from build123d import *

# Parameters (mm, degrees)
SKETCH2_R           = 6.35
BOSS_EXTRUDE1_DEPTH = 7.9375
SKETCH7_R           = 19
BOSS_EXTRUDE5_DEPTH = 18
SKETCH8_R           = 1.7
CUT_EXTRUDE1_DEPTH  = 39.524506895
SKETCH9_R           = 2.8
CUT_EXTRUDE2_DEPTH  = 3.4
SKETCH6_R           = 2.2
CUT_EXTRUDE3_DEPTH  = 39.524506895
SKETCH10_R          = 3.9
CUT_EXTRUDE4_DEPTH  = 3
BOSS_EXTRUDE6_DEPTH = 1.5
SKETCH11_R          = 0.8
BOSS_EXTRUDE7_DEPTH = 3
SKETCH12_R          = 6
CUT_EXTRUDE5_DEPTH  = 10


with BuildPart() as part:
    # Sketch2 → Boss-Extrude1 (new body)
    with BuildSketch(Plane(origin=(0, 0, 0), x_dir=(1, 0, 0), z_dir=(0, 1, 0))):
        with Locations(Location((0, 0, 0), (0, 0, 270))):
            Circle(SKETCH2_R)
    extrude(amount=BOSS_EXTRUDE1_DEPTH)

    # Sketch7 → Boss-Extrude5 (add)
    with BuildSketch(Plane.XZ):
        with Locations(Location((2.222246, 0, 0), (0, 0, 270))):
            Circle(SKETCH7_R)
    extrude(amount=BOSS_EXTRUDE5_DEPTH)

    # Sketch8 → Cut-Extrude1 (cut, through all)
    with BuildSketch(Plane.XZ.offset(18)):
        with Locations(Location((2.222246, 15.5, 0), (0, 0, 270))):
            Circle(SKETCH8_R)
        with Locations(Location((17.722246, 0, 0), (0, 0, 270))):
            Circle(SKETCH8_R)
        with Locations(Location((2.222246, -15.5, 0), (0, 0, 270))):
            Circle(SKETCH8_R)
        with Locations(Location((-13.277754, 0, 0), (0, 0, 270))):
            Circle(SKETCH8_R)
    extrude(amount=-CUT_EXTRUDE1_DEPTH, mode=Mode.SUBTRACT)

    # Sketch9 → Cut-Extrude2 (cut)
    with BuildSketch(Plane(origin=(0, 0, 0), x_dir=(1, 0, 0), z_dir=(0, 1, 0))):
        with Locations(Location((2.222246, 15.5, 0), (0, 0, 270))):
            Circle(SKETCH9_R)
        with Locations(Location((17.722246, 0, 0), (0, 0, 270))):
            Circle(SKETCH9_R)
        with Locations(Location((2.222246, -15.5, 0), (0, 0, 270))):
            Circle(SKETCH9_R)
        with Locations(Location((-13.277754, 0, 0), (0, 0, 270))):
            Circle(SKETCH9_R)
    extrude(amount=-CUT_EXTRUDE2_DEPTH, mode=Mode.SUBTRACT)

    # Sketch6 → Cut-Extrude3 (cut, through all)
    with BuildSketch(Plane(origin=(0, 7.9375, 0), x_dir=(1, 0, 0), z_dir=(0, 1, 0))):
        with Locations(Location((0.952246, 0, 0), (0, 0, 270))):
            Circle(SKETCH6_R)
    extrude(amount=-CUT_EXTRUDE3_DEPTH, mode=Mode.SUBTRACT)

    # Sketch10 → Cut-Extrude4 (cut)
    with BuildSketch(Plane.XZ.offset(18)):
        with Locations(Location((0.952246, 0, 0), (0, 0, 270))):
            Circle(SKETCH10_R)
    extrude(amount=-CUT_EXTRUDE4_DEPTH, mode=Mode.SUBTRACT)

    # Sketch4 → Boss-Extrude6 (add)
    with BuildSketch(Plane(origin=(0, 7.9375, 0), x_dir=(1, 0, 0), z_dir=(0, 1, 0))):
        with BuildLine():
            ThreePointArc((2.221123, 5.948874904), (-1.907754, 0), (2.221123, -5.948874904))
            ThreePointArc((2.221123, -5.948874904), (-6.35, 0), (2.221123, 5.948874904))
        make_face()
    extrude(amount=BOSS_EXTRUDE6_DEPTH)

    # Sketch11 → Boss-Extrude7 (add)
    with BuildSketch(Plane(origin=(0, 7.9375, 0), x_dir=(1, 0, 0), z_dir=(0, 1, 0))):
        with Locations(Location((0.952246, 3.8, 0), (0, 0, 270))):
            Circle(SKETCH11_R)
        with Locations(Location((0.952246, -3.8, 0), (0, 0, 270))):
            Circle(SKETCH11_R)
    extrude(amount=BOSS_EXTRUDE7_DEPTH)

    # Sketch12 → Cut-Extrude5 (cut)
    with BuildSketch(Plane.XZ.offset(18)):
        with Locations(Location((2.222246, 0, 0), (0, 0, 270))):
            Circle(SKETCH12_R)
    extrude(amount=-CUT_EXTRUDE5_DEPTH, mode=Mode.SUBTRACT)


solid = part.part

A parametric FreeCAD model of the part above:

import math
import FreeCAD as App
import Part
import Sketcher
from FreeCAD import Vector
Q = App.Units.Quantity

doc = App.newDocument("Part")
params = doc.addObject("Spreadsheet::Sheet", "Params")
for row, (alias, value) in enumerate([
    ("sketch1_diameter", "12.7 mm"),
    ("pad1_length", "7.9375 mm"),
    ("sketch2_diameter", "38 mm"),
    ("pad2_length", "18 mm"),
    ("sketch3_diameter", "3.4 mm"),
    ("sketch4_diameter", "5.6 mm"),
    ("pocket2_length", "3.4 mm"),
    ("sketch5_diameter", "4.4 mm"),
    ("sketch6_diameter", "7.8 mm"),
    ("pocket4_length", "3 mm"),
    ("sketch7_radius", "6.35 mm"),
    ("pad3_length", "1.5 mm"),
    ("sketch8_diameter", "1.6 mm"),
    ("pad4_length", "3 mm"),
    ("sketch9_diameter", "12 mm"),
    ("pocket5_length", "10 mm"),
], start=1):
    params.set(f"A{row}", alias)
    params.set(f"B{row}", "=" + value)
    params.setAlias(f"B{row}", alias)

body = doc.addObject("PartDesign::Body", "Body")

# Sketch on XZ plane
sketch1 = doc.addObject("Sketcher::SketchObject", "Sketch")
body.addObject(sketch1)
sketch1.AttachmentSupport = (doc.XZ_Plane, [""])
sketch1.MapMode = "FlatFace"
sketch1.addGeometry(Part.Circle(Vector(0, 0, 0), Vector(0, 0, 1), 6), False)
sketch1.addConstraint([
    Sketcher.Constraint("Coincident", 0, 3, -1, 1),
    Sketcher.Constraint("Diameter", 0, Q("12.7 mm")),
])
sketch1.setExpression("Constraints[1]", "Params.sketch1_diameter")
pad1 = doc.addObject("PartDesign::Pad", "Pad")
body.addObject(pad1)
pad1.Profile = sketch1
pad1.setExpression("Length", "Params.pad1_length")
pad1.Reversed = True

# Sketch on XZ plane
sketch2 = doc.addObject("Sketcher::SketchObject", "Sketch001")
body.addObject(sketch2)
sketch2.AttachmentSupport = (doc.XZ_Plane, [""])
sketch2.MapMode = "FlatFace"
sketch2.addGeometry(Part.Circle(Vector(2, 0, 0), Vector(0, 0, 1), 19), False)
sketch2.addConstraint([
    Sketcher.Constraint("PointOnObject", 0, 3, -1),
    Sketcher.Constraint("Diameter", 0, Q("38 mm")),
    Sketcher.Constraint("DistanceX", -1, 1, 0, 3, Q("2.222246 mm")),
])
sketch2.setExpression("Constraints[1]", "Params.sketch2_diameter")
pad2 = doc.addObject("PartDesign::Pad", "Pad001")
body.addObject(pad2)
pad2.Profile = sketch2
pad2.setExpression("Length", "Params.pad2_length")

# Sketch on XZ plane
sketch3 = doc.addObject("Sketcher::SketchObject", "Sketch002")
body.addObject(sketch3)
sketch3.AttachmentSupport = (doc.XZ_Plane, [""])
sketch3.MapMode = "FlatFace"
sketch3.AttachmentOffset = App.Placement(Vector(0, 0, 18), App.Rotation())
sketch3.addGeometry([
    Part.Circle(Vector(2.2, 15.5, 0), Vector(0, 0, 1), 1.7),
    Part.Circle(Vector(17.7, 0, 0), Vector(0, 0, 1), 1.7),
    Part.Circle(Vector(2.2, -15.5, 0), Vector(0, 0, 1), 1.7),
    Part.Circle(Vector(-13.3, 0, 0), Vector(0, 0, 1), 1.7),
], False)
sketch3.addConstraint([
    Sketcher.Constraint("Equal", 0, 1),
    Sketcher.Constraint("Equal", 1, 2),
    Sketcher.Constraint("Equal", 2, 3),
    Sketcher.Constraint("Symmetric", 0, 3, 2, 3, -1),
    Sketcher.Constraint("PointOnObject", 1, 3, -1),
    Sketcher.Constraint("PointOnObject", 3, 3, -1),
    Sketcher.Constraint("Diameter", 0, Q("3.4 mm")),
    Sketcher.Constraint("DistanceY", 2, 3, 0, 3, Q("31 mm")),
    Sketcher.Constraint("DistanceX", 3, 3, 1, 3, Q("31 mm")),
    Sketcher.Constraint("DistanceX", 0, 3, 1, 3, Q("15.5 mm")),
    Sketcher.Constraint("DistanceX", -1, 1, 0, 3, Q("2.222246 mm")),
])
sketch3.setExpression("Constraints[6]", "Params.sketch3_diameter")
pocket1 = doc.addObject("PartDesign::Pocket", "Pocket")
body.addObject(pocket1)
pocket1.Profile = sketch3
pocket1.Type = "ThroughAll"

# Sketch on XZ plane
sketch4 = doc.addObject("Sketcher::SketchObject", "Sketch003")
body.addObject(sketch4)
sketch4.AttachmentSupport = (doc.XZ_Plane, [""])
sketch4.MapMode = "FlatFace"
sketch4.addGeometry([
    Part.Circle(Vector(2.2, -15.5, 0), Vector(0, 0, 1), 2.8),
    Part.Circle(Vector(17.7, 0, 0), Vector(0, 0, 1), 2.8),
    Part.Circle(Vector(2.2, 15.5, 0), Vector(0, 0, 1), 2.8),
    Part.Circle(Vector(-13.3, 0, 0), Vector(0, 0, 1), 2.8),
], False)
sketch4.addConstraint([
    Sketcher.Constraint("Equal", 0, 1),
    Sketcher.Constraint("Equal", 1, 2),
    Sketcher.Constraint("Equal", 2, 3),
    Sketcher.Constraint("Symmetric", 0, 3, 2, 3, -1),
    Sketcher.Constraint("PointOnObject", 1, 3, -1),
    Sketcher.Constraint("PointOnObject", 3, 3, -1),
    Sketcher.Constraint("Diameter", 0, Q("5.6 mm")),
    Sketcher.Constraint("DistanceY", 0, 3, 2, 3, Q("31 mm")),
    Sketcher.Constraint("DistanceX", 3, 3, 1, 3, Q("31 mm")),
    Sketcher.Constraint("DistanceX", 0, 3, 1, 3, Q("15.5 mm")),
    Sketcher.Constraint("DistanceX", -1, 1, 0, 3, Q("2.222246 mm")),
])
sketch4.setExpression("Constraints[6]", "Params.sketch4_diameter")
pocket2 = doc.addObject("PartDesign::Pocket", "Pocket001")
body.addObject(pocket2)
pocket2.Profile = sketch4
pocket2.setExpression("Length", "Params.pocket2_length")
pocket2.Reversed = True

# Sketch on XZ plane
sketch5 = doc.addObject("Sketcher::SketchObject", "Sketch004")
body.addObject(sketch5)
sketch5.AttachmentSupport = (doc.XZ_Plane, [""])
sketch5.MapMode = "FlatFace"
sketch5.AttachmentOffset = App.Placement(Vector(0, 0, -7.9375), App.Rotation())
sketch5.addGeometry(Part.Circle(Vector(1, 0, 0), Vector(0, 0, 1), 2.2), False)
sketch5.addConstraint([
    Sketcher.Constraint("PointOnObject", 0, 3, -1),
    Sketcher.Constraint("Diameter", 0, Q("4.4 mm")),
    Sketcher.Constraint("DistanceX", -1, 1, 0, 3, Q("0.952246 mm")),
])
sketch5.setExpression("Constraints[1]", "Params.sketch5_diameter")
pocket3 = doc.addObject("PartDesign::Pocket", "Pocket002")
body.addObject(pocket3)
pocket3.Profile = sketch5
pocket3.Type = "ThroughAll"
pocket3.Reversed = True

# Sketch on XZ plane
sketch6 = doc.addObject("Sketcher::SketchObject", "Sketch005")
body.addObject(sketch6)
sketch6.AttachmentSupport = (doc.XZ_Plane, [""])
sketch6.MapMode = "FlatFace"
sketch6.AttachmentOffset = App.Placement(Vector(0, 0, 18), App.Rotation())
sketch6.addGeometry(Part.Circle(Vector(1, 0, 0), Vector(0, 0, 1), 3.9), False)
sketch6.addConstraint([
    Sketcher.Constraint("PointOnObject", 0, 3, -1),
    Sketcher.Constraint("Diameter", 0, Q("7.8 mm")),
    Sketcher.Constraint("DistanceX", -1, 1, 0, 3, Q("0.952246 mm")),
])
sketch6.setExpression("Constraints[1]", "Params.sketch6_diameter")
pocket4 = doc.addObject("PartDesign::Pocket", "Pocket003")
body.addObject(pocket4)
pocket4.Profile = sketch6
pocket4.setExpression("Length", "Params.pocket4_length")

# Sketch on XZ plane
sketch7 = doc.addObject("Sketcher::SketchObject", "Sketch006")
body.addObject(sketch7)
sketch7.AttachmentSupport = (doc.XZ_Plane, [""])
sketch7.MapMode = "FlatFace"
sketch7.AttachmentOffset = App.Placement(Vector(0, 0, -7.9375), App.Rotation())
sketch7.addGeometry([
    Part.ArcOfCircle(Part.Circle(Vector(4, 0, 0), Vector(0, 0, 1), 6), math.radians(110), math.radians(250)),
    Part.ArcOfCircle(Part.Circle(Vector(0, 0, 0), Vector(0, 0, 1), 6), math.radians(70), math.radians(290)),
], False)
sketch7.addConstraint([
    Sketcher.Constraint("Coincident", 0, 1, 1, 1),
    Sketcher.Constraint("Coincident", 1, 2, 0, 2),
    Sketcher.Constraint("Coincident", 1, 3, -1, 1),
    Sketcher.Constraint("Equal", 0, 1),
    Sketcher.Constraint("PointOnObject", 0, 3, -1),
    Sketcher.Constraint("Radius", 0, Q("6.35 mm")),
    Sketcher.Constraint("DistanceY", 1, 2, 0, 1, Q("11.89775 mm")),
])
sketch7.setExpression("Constraints[5]", "Params.sketch7_radius")
pad3 = doc.addObject("PartDesign::Pad", "Pad002")
body.addObject(pad3)
pad3.Profile = sketch7
pad3.setExpression("Length", "Params.pad3_length")
pad3.Reversed = True

# Sketch on XZ plane
sketch8 = doc.addObject("Sketcher::SketchObject", "Sketch007")
body.addObject(sketch8)
sketch8.AttachmentSupport = (doc.XZ_Plane, [""])
sketch8.MapMode = "FlatFace"
sketch8.AttachmentOffset = App.Placement(Vector(0, 0, -7.9375), App.Rotation())
sketch8.addGeometry([
    Part.Circle(Vector(1, -3.8, 0), Vector(0, 0, 1), 0.8),
    Part.Circle(Vector(1, 3.8, 0), Vector(0, 0, 1), 0.8),
], False)
sketch8.addConstraint([
    Sketcher.Constraint("Equal", 0, 1),
    Sketcher.Constraint("Symmetric", 0, 3, 1, 3, -1),
    Sketcher.Constraint("Diameter", 0, Q("1.6 mm")),
    Sketcher.Constraint("DistanceY", 0, 3, -1, 1, Q("3.8 mm")),
    Sketcher.Constraint("DistanceX", -1, 1, 0, 3, Q("0.952246 mm")),
])
sketch8.setExpression("Constraints[2]", "Params.sketch8_diameter")
pad4 = doc.addObject("PartDesign::Pad", "Pad003")
body.addObject(pad4)
pad4.Profile = sketch8
pad4.setExpression("Length", "Params.pad4_length")
pad4.Reversed = True

# Sketch on XZ plane
sketch9 = doc.addObject("Sketcher::SketchObject", "Sketch008")
body.addObject(sketch9)
sketch9.AttachmentSupport = (doc.XZ_Plane, [""])
sketch9.MapMode = "FlatFace"
sketch9.AttachmentOffset = App.Placement(Vector(0, 0, 18), App.Rotation())
sketch9.addGeometry(Part.Circle(Vector(2, 0, 0), Vector(0, 0, 1), 6), False)
sketch9.addConstraint([
    Sketcher.Constraint("PointOnObject", 0, 3, -1),
    Sketcher.Constraint("Diameter", 0, Q("12 mm")),
    Sketcher.Constraint("DistanceX", -1, 1, 0, 3, Q("2.222246 mm")),
])
sketch9.setExpression("Constraints[1]", "Params.sketch9_diameter")
pocket5 = doc.addObject("PartDesign::Pocket", "Pocket004")
body.addObject(pocket5)
pocket5.Profile = sketch9
pocket5.setExpression("Length", "Params.pocket5_length")

doc.recompute()
